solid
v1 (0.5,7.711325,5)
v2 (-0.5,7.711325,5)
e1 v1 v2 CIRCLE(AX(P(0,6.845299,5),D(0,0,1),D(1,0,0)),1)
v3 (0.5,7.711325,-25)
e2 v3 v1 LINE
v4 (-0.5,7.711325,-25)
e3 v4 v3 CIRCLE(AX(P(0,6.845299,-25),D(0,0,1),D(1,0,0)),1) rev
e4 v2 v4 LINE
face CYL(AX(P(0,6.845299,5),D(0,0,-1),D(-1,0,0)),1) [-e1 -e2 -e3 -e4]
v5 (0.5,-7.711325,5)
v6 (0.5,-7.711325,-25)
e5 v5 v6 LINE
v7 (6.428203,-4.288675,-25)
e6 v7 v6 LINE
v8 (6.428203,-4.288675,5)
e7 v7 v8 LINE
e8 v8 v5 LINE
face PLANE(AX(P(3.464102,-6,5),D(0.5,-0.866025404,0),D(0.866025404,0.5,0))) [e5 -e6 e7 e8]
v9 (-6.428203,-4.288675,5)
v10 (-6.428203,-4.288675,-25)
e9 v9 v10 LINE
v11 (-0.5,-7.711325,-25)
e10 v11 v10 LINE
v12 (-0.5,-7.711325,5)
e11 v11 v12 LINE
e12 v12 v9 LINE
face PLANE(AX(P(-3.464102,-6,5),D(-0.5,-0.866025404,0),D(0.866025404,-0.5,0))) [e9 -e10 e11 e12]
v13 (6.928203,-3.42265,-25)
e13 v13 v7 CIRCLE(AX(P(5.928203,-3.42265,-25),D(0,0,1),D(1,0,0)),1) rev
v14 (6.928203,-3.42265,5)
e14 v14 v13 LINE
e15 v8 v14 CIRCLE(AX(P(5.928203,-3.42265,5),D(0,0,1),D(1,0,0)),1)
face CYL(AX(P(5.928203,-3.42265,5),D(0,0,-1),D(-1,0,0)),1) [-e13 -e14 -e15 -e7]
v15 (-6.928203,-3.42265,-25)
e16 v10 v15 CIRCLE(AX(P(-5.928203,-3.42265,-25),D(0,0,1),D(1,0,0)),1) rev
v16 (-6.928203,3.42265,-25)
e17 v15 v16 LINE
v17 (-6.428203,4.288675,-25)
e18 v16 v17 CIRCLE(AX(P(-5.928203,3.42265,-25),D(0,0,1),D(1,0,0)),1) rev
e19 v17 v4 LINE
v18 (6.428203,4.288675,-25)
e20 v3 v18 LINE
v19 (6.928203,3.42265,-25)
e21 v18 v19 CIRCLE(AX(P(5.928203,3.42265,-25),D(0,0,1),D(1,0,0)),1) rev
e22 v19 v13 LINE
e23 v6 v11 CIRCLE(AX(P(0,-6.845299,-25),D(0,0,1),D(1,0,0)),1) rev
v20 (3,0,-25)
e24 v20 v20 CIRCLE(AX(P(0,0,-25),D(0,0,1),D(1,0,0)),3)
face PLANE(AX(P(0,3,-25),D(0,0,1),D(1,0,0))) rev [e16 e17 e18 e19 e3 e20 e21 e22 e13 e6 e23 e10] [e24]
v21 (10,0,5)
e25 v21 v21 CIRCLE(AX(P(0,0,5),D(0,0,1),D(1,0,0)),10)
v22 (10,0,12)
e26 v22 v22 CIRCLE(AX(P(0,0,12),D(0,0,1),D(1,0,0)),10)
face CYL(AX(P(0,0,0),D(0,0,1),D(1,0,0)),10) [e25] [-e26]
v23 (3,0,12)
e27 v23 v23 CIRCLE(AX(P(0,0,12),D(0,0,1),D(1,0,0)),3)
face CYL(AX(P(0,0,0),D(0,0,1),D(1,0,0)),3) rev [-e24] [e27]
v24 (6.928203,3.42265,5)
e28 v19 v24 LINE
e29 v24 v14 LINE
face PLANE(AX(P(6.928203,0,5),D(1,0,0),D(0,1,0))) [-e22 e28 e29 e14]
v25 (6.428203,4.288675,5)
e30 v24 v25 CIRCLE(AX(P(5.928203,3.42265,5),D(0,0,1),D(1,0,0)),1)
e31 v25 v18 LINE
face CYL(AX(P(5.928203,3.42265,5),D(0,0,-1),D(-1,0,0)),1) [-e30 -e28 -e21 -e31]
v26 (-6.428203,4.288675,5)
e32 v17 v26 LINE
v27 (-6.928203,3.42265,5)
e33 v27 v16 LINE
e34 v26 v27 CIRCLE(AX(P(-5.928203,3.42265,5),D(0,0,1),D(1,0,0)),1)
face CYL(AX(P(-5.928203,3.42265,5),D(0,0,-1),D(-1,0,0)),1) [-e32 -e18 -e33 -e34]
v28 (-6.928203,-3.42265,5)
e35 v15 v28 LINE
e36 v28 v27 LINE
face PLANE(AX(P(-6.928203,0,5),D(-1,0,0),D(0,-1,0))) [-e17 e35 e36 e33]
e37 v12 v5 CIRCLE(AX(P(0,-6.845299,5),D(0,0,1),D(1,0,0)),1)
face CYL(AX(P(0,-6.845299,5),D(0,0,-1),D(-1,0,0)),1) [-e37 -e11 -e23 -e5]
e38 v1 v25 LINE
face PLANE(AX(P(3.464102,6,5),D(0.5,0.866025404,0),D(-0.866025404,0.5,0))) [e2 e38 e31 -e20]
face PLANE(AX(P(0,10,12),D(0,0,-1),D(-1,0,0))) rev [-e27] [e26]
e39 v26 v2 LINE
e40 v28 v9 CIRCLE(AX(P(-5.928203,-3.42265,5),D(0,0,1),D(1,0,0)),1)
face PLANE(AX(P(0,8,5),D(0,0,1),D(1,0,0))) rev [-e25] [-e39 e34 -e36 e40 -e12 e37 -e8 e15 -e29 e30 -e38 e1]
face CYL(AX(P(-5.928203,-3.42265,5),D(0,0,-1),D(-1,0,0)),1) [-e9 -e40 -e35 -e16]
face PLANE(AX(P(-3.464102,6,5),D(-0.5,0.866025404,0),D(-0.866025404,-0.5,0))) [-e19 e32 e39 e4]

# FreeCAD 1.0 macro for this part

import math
import FreeCAD as App
import Part
import Sketcher
from FreeCAD import Vector


def edges_at(feature, points):
    """Names of the edges that pass closest to the given points."""
    edges = feature.Shape.Edges
    near = lambda p: min(range(len(edges)), key=lambda i: edges[i].distToShape(Part.Vertex(*p))[0])
    return sorted({f"Edge{near(p) + 1}" for p in points})

doc = App.newDocument("Part")
body = doc.addObject("PartDesign::Body", "Body")

# Sketch on YZ plane
sketch1 = body.newObject("Sketcher::SketchObject", "Sketch")
sketch1.AttachmentSupport = (doc.getObject("YZ_Plane"), [""])
sketch1.MapMode = "FlatFace"
sketch1.addGeometry(Part.LineSegment(Vector(3, 12, 0), Vector(3, -25, 0)), False)
sketch1.addGeometry(Part.LineSegment(Vector(3, -25, 0), Vector(8, -25, 0)), False)
sketch1.addGeometry(Part.LineSegment(Vector(8, -25, 0), Vector(8, 5, 0)), False)
sketch1.addGeometry(Part.LineSegment(Vector(8, 5, 0), Vector(10, 5, 0)), False)
sketch1.addGeometry(Part.LineSegment(Vector(10, 5, 0), Vector(10, 12, 0)), False)
sketch1.addGeometry(Part.LineSegment(Vector(10, 12, 0), Vector(3, 12, 0)), False)
sketch1.addConstraint(Sketcher.Constraint("Coincident", 0, 2, 1, 1))
sketch1.addConstraint(Sketcher.Constraint("Coincident", 1, 2, 2, 1))
sketch1.addConstraint(Sketcher.Constraint("Coincident", 2, 2, 3, 1))
sketch1.addConstraint(Sketcher.Constraint("Coincident", 3, 2, 4, 1))
sketch1.addConstraint(Sketcher.Constraint("Coincident", 4, 2, 5, 1))
sketch1.addConstraint(Sketcher.Constraint("Coincident", 5, 2, 0, 1))
sketch1.addConstraint(Sketcher.Constraint("Vertical", 0))
sketch1.addConstraint(Sketcher.Constraint("Horizontal", 1))
sketch1.addConstraint(Sketcher.Constraint("Vertical", 2))
sketch1.addConstraint(Sketcher.Constraint("Horizontal", 3))
sketch1.addConstraint(Sketcher.Constraint("Vertical", 4))
sketch1.addConstraint(Sketcher.Constraint("Horizontal", 5))
sketch1.addConstraint(Sketcher.Constraint("Equal", 5, 4))
sketch1.addConstraint(Sketcher.Constraint("DistanceX", 1, 1, 1, 2, 5.0))
sketch1.addConstraint(Sketcher.Constraint("DistanceX", 3, 1, 3, 2, 2.0))
sketch1.addConstraint(Sketcher.Constraint("DistanceY", 0, 2, 0, 1, 37.0))
sketch1.addConstraint(Sketcher.Constraint("DistanceX", -1, 1, 0, 2, 3.0))
sketch1.addConstraint(Sketcher.Constraint("DistanceY", 0, 2, -1, 1, 25.0))
revolution = body.newObject("PartDesign::Revolution", "Revolution")
revolution.Profile = sketch1
revolution.ReferenceAxis = (sketch1, ["V_Axis"])
revolution.Angle = 360

# Sketch on XY plane
sketch2 = body.newObject("Sketcher::SketchObject", "Sketch001")
sketch2.AttachmentSupport = (doc.getObject("XY_Plane"), [""])
sketch2.MapMode = "FlatFace"
sketch2.AttachmentOffset = App.Placement(Vector(0, 0, -25), App.Rotation())
sketch2.addGeometry(Part.ArcOfCircle(Part.Circle(Vector(0, 0, 0), Vector(0, 0, 1), 8), math.radians(30), math.radians(90)), False)
sketch2.addGeometry(Part.LineSegment(Vector(6.9, 4, 0), Vector(0, 8, 0)), False)
sketch2.addGeometry(Part.ArcOfCircle(Part.Circle(Vector(0, 0, 0), Vector(0, 0, 1), 8), math.radians(-30), math.radians(30)), False)
sketch2.addGeometry(Part.LineSegment(Vector(6.9, -4, 0), Vector(6.9, 4, 0)), False)
sketch2.addGeometry(Part.ArcOfCircle(Part.Circle(Vector(0, 0, 0), Vector(0, 0, 1), 8), math.radians(-90), math.radians(-30)), False)
sketch2.addGeometry(Part.LineSegment(Vector(0, -8, 0), Vector(6.9, -4, 0)), False)
sketch2.addGeometry(Part.LineSegment(Vector(-6.9, -4, 0), Vector(0, -8, 0)), False)
sketch2.addGeometry(Part.ArcOfCircle(Part.Circle(Vector(0, 0, 0), Vector(0, 0, 1), 8), math.radians(-150), math.radians(-90)), False)
sketch2.addGeometry(Part.LineSegment(Vector(-6.9, 4, 0), Vector(-6.9, -4, 0)), False)
sketch2.addGeometry(Part.ArcOfCircle(Part.Circle(Vector(0, 0, 0), Vector(0, 0, 1), 8), math.radians(-180), math.radians(-150)), False)
sketch2.addGeometry(Part.ArcOfCircle(Part.Circle(Vector(0, 0, 0), Vector(0, 0, 1), 8), math.radians(150), math.radians(180)), False)
sketch2.addGeometry(Part.LineSegment(Vector(0, 8, 0), Vector(-6.9, 4, 0)), False)
sketch2.addGeometry(Part.ArcOfCircle(Part.Circle(Vector(0, 0, 0), Vector(0, 0, 1), 8), math.radians(90), math.radians(150)), False)
sketch2.addConstraint(Sketcher.Constraint("Coincident", 0, 1, 1, 1))
sketch2.addConstraint(Sketcher.Constraint("Coincident", 1, 2, 0, 2))
sketch2.addConstraint(Sketcher.Constraint("Coincident", 2, 1, 3, 1))
sketch2.addConstraint(Sketcher.Constraint("Coincident", 3, 2, 2, 2))
sketch2.addConstraint(Sketcher.Constraint("Coincident", 4, 1, 5, 1))
sketch2.addConstraint(Sketcher.Constraint("Coincident", 5, 2, 4, 2))
sketch2.addConstraint(Sketcher.Constraint("Coincident", 6, 1, 7, 1))
sketch2.addConstraint(Sketcher.Constraint("Coincident", 7, 2, 6, 2))
sketch2.addConstraint(Sketcher.Constraint("Coincident", 8, 2, 9, 2))
sketch2.addConstraint(Sketcher.Constraint("Tangent", 9, 1, 10, 2))
sketch2.addConstraint(Sketcher.Constraint("Coincident", 10, 1, 8, 1))
sketch2.addConstraint(Sketcher.Constraint("Coincident", 11, 1, 12, 1))
sketch2.addConstraint(Sketcher.Constraint("Coincident", 12, 2, 11, 2))
sketch2.addConstraint(Sketcher.Constraint("Vertical", 3))
sketch2.addConstraint(Sketcher.Constraint("Vertical", 8))
sketch2.addConstraint(Sketcher.Constraint("Coincident", 0, 3, -1, 1))
sketch2.addConstraint(Sketcher.Constraint("Coincident", 2, 3, -1, 1))
sketch2.addConstraint(Sketcher.Constraint("Coincident", 4, 3, -1, 1))
sketch2.addConstraint(Sketcher.Constraint("Coincident", 7, 3, -1, 1))
sketch2.addConstraint(Sketcher.Constraint("Coincident", 9, 3, -1, 1))
sketch2.addConstraint(Sketcher.Constraint("Coincident", 12, 3, -1, 1))
sketch2.addConstraint(Sketcher.Constraint("Coincident", 3, 2, 0, 1))
sketch2.addConstraint(Sketcher.Constraint("Coincident", 5, 2, 2, 1))
sketch2.addConstraint(Sketcher.Constraint("Coincident", 7, 2, 4, 1))
sketch2.addConstraint(Sketcher.Constraint("Coincident", 8, 2, 6, 1))
sketch2.addConstraint(Sketcher.Constraint("Coincident", 11, 1, 1, 2))
sketch2.addConstraint(Sketcher.Constraint("Coincident", 12, 2, 10, 1))
sketch2.addConstraint(Sketcher.Constraint("PointOnObject", 1, 2, -2))
sketch2.addConstraint(Sketcher.Constraint("PointOnObject", 4, 1, -2))
sketch2.addConstraint(Sketcher.Constraint("PointOnObject", 9, 1, -1))
sketch2.addConstraint(Sketcher.Constraint("Parallel", 1, 6))
sketch2.addConstraint(Sketcher.Constraint("Radius", 0, 8.0))
sketch2.addConstraint(Sketcher.Constraint("DistanceY", 3, 1, 3, 2, 8.0))
pocket1 = body.newObject("PartDesign::Pocket", "Pocket")
pocket1.Profile = sketch2
pocket1.Length = 30
pocket1.Reversed = True
doc.recompute()

fillet = body.newObject("PartDesign::Fillet", "Fillet")
fillet.Base = (pocket1, edges_at(pocket1, [
    (0, 8, -10),
    (6.928, 4, -10),
    (6.928, -4, -10),
    (0, -8, -10),
    (-6.928, -4, -10),
    (-6.928, 4, -10),
]))
fillet.Radius = 1

doc.recompute()
